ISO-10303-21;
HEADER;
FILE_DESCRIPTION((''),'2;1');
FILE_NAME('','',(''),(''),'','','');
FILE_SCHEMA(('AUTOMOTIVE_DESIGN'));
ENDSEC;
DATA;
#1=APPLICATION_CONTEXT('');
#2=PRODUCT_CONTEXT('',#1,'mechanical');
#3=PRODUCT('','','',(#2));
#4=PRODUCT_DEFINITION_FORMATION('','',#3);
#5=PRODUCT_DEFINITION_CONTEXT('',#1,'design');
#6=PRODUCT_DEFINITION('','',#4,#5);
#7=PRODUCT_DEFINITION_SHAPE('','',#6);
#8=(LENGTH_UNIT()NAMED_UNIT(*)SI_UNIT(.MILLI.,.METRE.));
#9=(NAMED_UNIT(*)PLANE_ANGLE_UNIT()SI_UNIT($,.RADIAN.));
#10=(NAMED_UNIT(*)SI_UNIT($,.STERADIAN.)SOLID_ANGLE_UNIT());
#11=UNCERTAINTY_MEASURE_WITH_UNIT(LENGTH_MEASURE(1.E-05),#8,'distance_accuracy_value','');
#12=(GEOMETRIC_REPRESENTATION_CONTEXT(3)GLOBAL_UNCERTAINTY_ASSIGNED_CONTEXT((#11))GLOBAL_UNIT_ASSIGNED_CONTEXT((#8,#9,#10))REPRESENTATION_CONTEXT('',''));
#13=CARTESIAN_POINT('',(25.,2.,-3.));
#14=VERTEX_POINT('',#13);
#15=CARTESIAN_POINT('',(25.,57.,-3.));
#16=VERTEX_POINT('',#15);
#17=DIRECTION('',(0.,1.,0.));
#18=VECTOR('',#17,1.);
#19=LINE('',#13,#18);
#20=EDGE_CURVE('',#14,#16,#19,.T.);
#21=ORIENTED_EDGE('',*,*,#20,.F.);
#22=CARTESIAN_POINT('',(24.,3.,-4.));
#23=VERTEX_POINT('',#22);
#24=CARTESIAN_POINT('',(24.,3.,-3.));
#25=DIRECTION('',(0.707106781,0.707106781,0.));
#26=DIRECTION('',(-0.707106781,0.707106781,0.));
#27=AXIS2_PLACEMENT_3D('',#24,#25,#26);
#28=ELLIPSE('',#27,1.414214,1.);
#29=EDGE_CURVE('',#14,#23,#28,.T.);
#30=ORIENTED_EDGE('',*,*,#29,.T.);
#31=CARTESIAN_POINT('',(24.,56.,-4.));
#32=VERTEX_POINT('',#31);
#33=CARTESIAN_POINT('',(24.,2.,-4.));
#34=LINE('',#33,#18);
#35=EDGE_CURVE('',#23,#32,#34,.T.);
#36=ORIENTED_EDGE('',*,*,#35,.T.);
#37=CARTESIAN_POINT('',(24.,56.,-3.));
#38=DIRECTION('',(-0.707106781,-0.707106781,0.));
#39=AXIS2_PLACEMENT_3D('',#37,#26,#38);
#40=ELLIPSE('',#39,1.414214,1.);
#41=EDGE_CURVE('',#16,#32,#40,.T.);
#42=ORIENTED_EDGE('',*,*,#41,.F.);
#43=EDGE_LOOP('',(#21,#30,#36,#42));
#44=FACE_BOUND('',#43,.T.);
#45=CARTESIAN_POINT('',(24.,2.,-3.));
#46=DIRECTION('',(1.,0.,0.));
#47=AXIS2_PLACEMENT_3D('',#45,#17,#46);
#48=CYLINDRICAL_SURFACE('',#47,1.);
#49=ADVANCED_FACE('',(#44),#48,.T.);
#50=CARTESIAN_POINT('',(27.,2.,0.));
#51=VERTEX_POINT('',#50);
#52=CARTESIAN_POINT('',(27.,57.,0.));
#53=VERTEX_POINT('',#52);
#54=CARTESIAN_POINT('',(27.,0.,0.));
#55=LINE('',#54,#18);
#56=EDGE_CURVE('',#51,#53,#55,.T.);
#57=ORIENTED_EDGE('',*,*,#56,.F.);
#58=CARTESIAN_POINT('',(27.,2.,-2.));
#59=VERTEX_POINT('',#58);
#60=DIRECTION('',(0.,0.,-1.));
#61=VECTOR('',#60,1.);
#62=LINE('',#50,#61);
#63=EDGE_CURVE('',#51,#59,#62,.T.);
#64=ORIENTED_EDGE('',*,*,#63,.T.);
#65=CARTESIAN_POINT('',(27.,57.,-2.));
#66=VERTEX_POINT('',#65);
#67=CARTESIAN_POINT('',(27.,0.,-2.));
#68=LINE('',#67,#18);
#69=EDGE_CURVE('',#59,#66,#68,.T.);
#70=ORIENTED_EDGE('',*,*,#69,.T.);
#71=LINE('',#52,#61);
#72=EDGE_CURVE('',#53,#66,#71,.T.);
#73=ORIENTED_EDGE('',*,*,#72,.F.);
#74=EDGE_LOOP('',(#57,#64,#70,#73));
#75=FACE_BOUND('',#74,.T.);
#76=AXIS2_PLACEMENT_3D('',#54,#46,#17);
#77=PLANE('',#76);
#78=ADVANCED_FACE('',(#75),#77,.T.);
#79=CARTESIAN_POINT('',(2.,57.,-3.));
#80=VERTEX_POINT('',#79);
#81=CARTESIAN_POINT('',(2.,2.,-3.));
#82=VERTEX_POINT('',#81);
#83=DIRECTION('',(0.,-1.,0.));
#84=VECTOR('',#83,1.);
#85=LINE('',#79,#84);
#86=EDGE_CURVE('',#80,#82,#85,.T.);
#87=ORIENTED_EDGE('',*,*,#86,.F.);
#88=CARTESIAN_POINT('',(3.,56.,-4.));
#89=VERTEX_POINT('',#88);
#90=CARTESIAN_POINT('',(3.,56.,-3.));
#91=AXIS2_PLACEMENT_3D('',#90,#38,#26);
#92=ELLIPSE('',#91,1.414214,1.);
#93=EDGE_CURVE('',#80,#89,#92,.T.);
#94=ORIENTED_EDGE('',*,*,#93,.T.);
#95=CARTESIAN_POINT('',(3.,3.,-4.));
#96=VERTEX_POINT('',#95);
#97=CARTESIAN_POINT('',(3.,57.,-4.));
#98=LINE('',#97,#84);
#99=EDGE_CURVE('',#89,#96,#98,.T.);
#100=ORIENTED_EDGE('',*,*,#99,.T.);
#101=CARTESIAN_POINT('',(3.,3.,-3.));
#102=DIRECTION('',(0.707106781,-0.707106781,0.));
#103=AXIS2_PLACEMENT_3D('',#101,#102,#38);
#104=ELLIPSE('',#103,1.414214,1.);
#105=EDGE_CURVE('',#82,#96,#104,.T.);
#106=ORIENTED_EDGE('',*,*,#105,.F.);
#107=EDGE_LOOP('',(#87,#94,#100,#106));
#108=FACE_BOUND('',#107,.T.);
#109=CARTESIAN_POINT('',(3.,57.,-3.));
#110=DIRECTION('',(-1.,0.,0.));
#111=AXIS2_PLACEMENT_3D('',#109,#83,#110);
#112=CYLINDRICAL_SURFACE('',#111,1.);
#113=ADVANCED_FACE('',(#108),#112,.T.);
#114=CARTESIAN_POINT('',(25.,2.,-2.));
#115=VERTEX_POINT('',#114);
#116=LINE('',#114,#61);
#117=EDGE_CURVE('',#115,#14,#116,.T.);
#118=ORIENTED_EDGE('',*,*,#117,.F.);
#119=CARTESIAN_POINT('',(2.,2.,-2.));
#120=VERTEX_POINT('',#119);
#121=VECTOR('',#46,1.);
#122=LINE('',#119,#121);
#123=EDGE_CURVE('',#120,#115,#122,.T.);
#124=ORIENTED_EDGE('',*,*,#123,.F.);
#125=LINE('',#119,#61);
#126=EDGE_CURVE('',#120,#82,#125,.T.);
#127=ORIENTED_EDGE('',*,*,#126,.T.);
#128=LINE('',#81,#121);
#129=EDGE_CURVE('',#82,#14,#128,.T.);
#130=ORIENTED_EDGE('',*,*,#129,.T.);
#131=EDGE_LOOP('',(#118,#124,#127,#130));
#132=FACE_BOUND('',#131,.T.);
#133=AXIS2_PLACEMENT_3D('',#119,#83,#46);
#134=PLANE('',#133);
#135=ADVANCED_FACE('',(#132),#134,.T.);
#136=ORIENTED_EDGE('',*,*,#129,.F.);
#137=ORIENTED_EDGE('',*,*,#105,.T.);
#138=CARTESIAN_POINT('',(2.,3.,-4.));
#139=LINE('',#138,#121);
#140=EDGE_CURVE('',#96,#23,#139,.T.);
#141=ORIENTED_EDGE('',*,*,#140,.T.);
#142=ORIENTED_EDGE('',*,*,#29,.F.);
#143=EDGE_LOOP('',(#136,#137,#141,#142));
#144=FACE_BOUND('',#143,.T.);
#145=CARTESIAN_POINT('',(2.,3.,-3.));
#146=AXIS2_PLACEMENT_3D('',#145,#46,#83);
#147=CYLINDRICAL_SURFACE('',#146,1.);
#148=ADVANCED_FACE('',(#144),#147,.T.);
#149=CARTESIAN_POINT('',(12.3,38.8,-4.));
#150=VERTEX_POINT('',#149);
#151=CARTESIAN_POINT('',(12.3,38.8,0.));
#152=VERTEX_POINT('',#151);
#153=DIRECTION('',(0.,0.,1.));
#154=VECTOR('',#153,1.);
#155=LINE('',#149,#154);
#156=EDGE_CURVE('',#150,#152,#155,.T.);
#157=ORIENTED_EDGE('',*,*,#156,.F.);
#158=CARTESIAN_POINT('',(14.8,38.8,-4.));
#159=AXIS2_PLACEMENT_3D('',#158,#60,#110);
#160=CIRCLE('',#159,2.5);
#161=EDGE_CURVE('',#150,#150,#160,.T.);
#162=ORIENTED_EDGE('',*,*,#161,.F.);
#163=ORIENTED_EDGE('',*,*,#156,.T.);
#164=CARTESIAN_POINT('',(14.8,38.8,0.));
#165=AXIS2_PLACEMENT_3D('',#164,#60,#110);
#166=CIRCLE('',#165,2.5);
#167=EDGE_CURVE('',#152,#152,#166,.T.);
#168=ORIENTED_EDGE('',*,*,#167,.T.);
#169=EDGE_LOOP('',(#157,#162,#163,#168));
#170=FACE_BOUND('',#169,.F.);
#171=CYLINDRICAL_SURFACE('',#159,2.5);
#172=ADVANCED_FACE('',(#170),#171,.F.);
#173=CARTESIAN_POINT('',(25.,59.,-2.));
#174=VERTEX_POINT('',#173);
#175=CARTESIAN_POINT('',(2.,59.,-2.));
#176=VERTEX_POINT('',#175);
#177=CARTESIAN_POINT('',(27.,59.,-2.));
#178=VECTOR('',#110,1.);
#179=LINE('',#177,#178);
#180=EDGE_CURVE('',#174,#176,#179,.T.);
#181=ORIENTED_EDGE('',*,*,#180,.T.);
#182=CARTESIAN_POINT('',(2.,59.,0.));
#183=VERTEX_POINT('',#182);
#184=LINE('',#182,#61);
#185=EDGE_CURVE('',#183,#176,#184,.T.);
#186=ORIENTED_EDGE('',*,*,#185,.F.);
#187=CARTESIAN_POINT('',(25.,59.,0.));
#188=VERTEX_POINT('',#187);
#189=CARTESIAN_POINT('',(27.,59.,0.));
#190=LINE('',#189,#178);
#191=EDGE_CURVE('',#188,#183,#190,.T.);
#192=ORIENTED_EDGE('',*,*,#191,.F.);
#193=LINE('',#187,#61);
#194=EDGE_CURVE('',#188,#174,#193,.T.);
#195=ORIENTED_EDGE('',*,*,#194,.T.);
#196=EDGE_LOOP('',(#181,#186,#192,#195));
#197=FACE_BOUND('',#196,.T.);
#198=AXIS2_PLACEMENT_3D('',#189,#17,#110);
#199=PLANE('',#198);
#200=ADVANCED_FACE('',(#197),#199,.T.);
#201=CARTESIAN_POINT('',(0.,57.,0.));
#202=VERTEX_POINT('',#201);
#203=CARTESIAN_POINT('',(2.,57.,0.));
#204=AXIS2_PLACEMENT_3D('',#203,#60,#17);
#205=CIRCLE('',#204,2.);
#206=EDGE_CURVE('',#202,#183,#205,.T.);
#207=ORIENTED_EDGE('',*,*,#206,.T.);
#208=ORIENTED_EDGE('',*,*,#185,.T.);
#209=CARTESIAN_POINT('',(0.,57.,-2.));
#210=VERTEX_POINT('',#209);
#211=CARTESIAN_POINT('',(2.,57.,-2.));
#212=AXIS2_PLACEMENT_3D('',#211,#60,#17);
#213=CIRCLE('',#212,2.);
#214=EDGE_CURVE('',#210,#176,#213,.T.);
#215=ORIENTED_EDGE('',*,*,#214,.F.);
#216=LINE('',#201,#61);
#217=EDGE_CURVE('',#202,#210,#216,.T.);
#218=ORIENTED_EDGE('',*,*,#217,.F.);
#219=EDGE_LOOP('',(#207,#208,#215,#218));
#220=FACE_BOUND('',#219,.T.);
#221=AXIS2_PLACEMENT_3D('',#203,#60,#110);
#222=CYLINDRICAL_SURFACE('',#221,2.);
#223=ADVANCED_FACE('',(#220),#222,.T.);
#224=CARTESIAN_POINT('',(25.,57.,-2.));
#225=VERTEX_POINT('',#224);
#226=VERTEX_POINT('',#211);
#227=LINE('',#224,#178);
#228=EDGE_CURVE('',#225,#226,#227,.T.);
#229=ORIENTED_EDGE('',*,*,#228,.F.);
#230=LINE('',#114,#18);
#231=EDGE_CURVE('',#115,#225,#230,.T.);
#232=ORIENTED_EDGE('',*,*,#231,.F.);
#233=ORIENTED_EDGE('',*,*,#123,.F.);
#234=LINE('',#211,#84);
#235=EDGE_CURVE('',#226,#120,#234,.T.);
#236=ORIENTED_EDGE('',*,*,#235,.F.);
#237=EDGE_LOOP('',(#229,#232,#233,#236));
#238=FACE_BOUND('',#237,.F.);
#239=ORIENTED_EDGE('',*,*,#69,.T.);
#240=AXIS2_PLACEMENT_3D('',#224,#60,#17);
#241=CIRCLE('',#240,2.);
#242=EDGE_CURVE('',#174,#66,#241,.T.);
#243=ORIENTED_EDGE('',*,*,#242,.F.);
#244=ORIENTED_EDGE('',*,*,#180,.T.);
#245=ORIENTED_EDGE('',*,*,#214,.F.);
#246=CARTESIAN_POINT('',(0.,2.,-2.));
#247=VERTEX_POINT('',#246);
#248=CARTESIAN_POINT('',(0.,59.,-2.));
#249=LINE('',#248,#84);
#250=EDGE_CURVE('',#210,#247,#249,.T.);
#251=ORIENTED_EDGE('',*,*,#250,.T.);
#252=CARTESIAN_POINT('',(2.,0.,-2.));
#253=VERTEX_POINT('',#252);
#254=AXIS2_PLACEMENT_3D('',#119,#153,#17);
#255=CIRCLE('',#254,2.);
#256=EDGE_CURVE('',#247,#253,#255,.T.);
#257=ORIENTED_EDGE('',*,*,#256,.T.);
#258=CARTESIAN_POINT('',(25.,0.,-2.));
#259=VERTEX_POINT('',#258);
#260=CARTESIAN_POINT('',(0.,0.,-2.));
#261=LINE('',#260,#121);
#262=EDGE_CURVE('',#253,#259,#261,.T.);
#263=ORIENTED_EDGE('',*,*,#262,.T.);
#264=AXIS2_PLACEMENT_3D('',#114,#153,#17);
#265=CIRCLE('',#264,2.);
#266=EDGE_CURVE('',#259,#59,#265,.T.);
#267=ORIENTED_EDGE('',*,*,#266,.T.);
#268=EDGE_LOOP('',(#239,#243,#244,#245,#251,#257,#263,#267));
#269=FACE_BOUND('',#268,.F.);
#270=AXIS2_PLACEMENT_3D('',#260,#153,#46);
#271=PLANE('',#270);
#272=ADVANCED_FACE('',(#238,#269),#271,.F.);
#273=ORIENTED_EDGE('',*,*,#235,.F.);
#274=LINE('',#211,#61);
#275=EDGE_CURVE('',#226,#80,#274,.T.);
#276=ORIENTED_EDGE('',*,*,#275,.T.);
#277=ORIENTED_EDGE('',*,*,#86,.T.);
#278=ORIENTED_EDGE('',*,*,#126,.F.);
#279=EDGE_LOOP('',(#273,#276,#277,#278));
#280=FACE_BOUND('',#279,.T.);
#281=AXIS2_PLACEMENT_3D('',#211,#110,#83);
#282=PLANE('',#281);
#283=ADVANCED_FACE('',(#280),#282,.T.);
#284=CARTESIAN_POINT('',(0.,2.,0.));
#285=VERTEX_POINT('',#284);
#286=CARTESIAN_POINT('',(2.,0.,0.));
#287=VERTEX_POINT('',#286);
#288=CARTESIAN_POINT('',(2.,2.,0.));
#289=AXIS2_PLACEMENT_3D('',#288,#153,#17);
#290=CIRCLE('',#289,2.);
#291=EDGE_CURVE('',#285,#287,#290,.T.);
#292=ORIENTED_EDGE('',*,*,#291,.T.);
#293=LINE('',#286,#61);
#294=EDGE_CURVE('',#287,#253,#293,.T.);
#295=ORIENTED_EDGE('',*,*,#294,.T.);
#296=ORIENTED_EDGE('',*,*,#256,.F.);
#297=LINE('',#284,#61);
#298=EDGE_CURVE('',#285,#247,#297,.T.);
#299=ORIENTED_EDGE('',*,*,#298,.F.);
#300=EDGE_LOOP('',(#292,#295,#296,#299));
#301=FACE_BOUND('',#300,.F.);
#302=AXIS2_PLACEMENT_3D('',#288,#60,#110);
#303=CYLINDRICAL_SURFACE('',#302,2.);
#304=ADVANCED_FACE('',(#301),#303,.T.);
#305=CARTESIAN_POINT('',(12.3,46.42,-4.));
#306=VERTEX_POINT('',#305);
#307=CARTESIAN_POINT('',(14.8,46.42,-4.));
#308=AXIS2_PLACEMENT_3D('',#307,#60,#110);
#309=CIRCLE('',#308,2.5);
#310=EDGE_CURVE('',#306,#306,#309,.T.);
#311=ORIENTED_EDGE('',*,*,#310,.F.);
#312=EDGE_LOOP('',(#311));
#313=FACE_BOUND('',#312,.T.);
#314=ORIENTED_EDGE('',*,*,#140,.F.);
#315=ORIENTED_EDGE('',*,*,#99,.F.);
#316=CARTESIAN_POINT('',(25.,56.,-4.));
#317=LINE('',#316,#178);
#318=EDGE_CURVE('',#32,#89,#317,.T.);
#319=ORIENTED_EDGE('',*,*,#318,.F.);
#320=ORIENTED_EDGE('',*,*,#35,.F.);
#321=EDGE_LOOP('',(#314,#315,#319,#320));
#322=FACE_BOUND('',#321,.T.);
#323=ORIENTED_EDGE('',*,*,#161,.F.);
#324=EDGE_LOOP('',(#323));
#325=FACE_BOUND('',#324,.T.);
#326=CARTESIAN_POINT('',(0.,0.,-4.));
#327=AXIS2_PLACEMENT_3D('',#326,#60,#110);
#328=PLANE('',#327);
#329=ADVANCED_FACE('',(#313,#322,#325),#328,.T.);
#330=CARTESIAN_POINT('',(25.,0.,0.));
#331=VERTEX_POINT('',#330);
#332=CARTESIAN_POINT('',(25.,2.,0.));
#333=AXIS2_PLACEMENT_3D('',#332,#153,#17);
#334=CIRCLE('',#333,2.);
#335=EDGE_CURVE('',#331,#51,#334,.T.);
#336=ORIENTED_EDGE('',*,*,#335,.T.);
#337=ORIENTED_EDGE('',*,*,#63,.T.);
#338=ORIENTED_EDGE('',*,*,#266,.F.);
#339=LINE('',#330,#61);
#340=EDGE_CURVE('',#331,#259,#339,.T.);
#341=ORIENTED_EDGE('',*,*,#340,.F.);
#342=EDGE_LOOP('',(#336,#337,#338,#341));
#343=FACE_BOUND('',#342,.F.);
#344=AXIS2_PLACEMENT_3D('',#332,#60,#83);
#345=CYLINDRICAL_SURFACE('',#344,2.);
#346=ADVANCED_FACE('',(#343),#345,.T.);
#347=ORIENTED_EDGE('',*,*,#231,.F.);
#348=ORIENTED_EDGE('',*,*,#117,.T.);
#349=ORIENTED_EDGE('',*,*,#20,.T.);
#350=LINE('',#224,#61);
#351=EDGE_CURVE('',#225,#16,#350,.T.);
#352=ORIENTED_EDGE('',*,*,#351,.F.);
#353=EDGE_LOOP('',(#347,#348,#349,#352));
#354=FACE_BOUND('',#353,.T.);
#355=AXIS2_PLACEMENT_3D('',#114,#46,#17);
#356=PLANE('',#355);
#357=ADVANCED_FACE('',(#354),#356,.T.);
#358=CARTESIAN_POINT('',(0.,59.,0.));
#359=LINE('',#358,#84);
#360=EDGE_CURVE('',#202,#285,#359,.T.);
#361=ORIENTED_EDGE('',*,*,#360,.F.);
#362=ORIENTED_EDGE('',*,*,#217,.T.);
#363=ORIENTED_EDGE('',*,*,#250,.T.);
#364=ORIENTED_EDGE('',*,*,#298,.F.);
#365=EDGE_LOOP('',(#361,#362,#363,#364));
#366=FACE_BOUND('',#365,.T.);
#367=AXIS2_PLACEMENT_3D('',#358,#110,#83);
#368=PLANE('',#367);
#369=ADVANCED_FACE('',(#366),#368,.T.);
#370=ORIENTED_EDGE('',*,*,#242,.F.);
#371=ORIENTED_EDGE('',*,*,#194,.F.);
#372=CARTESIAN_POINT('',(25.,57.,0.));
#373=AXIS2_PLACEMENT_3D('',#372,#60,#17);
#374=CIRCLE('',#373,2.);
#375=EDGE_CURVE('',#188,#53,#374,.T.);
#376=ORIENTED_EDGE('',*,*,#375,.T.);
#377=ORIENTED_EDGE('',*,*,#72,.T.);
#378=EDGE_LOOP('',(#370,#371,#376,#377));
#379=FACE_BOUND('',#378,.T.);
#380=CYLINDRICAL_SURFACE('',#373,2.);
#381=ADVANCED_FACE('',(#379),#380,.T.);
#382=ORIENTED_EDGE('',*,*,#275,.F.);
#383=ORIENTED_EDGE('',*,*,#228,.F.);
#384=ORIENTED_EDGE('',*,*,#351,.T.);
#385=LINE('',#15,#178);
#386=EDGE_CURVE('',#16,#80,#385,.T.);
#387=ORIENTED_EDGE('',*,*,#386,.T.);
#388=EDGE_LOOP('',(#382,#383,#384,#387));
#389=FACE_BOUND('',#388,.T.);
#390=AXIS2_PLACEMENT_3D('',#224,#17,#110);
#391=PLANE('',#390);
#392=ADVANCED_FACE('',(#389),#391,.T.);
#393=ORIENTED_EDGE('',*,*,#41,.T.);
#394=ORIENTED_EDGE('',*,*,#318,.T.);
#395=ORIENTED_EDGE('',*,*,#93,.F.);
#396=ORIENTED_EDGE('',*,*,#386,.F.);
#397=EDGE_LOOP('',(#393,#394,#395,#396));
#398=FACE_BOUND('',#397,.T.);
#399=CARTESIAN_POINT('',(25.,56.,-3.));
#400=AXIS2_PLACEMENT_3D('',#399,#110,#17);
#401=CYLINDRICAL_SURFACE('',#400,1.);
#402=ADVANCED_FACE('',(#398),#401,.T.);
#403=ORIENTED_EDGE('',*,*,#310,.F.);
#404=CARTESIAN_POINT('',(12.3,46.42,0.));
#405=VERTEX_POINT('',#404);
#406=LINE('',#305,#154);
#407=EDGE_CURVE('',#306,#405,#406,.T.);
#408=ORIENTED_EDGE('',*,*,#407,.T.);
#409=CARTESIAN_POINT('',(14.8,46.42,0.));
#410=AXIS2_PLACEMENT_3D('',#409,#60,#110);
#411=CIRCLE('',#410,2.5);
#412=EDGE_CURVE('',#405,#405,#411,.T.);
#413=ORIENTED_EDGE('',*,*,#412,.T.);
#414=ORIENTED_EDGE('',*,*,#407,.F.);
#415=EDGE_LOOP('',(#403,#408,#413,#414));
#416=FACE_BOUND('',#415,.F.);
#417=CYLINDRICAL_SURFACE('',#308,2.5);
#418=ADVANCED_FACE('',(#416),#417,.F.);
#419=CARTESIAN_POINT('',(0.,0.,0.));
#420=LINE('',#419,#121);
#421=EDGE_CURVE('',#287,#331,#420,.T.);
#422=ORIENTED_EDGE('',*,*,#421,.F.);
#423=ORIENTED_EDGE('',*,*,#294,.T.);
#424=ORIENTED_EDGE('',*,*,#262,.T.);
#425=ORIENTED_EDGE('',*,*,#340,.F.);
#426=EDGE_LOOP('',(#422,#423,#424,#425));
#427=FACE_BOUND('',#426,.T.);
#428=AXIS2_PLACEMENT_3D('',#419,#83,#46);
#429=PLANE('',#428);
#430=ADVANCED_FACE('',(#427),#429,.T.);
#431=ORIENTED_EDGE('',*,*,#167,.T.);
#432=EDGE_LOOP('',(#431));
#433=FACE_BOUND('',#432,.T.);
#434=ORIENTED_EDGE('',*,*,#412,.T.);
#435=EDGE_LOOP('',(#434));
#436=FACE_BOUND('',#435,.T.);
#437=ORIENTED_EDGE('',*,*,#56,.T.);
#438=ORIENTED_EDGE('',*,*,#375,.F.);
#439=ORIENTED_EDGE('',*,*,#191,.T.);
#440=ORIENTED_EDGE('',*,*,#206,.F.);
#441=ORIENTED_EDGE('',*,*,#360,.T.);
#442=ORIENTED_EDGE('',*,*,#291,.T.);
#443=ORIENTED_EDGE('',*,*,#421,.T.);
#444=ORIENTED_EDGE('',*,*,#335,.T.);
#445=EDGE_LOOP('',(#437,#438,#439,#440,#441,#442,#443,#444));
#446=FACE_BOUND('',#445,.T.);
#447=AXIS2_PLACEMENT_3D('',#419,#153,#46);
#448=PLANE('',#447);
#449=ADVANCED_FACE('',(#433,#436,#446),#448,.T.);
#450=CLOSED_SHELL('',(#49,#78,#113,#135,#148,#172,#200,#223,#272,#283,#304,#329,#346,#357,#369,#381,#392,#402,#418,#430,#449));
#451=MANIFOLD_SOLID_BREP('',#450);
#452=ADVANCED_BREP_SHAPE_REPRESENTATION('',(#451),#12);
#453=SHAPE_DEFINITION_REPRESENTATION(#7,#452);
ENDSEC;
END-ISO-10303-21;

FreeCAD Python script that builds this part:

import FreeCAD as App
import Part
import Sketcher
from FreeCAD import Vector
Q = App.Units.Quantity


def edges_at(feature, points):
    """Names of the edges that pass closest to the given points."""
    edges = feature.Shape.Edges
    near = lambda p: min(range(len(edges)), key=lambda i: edges[i].distToShape(Part.Vertex(*p))[0])
    return sorted({f"Edge{near(p) + 1}" for p in points})

doc = App.newDocument("Part")
body = doc.addObject("PartDesign::Body", "Body")

sketch1 = body.newObject("Sketcher::SketchObject", "Sketch")
sketch1.AttachmentSupport = (doc.getObject("XY_Plane"), [""])
sketch1.MapMode = "FlatFace"
sketch1.addGeometry([
    Part.LineSegment(Vector(0, 59, 0), Vector(0, 0, 0)),
    Part.LineSegment(Vector(0, 0, 0), Vector(27, 0, 0)),
    Part.LineSegment(Vector(27, 0, 0), Vector(27, 59, 0)),
    Part.LineSegment(Vector(27, 59, 0), Vector(0, 59, 0)),
], False)
sketch1.addConstraint([
    Sketcher.Constraint("Coincident", 0, 2, 1, 1),
    Sketcher.Constraint("Coincident", 1, 2, 2, 1),
    Sketcher.Constraint("Coincident", 2, 2, 3, 1),
    Sketcher.Constraint("Coincident", 3, 2, 0, 1),
    Sketcher.Constraint("Vertical", 0),
    Sketcher.Constraint("Horizontal", 1),
    Sketcher.Constraint("Vertical", 2),
    Sketcher.Constraint("Horizontal", 3),
    Sketcher.Constraint("Coincident", 0, 2, -1, 1),
    Sketcher.Constraint("DistanceX", 1, 1, 1, 2, Q("27 mm")),
    Sketcher.Constraint("DistanceY", 0, 2, 0, 1, Q("59 mm")),
])
pad1 = body.newObject("PartDesign::Pad", "Pad")
pad1.Profile = sketch1
pad1.Length = 2
pad1.Reversed = True

sketch2 = body.newObject("Sketcher::SketchObject", "Sketch001")
sketch2.AttachmentSupport = (doc.getObject("XY_Plane"), [""])
sketch2.MapMode = "FlatFace"
sketch2.AttachmentOffset = App.Placement(Vector(0, 0, -2), App.Rotation())
sketch2.addGeometry([
    Part.LineSegment(Vector(25, 2, 0), Vector(2, 2, 0)),
    Part.LineSegment(Vector(2, 2, 0), Vector(2, 57, 0)),
    Part.LineSegment(Vector(2, 57, 0), Vector(25, 57, 0)),
    Part.LineSegment(Vector(25, 57, 0), Vector(25, 2, 0)),
], False)
sketch2.addConstraint([
    Sketcher.Constraint("Coincident", 0, 2, 1, 1),
    Sketcher.Constraint("Coincident", 1, 2, 2, 1),
    Sketcher.Constraint("Coincident", 2, 2, 3, 1),
    Sketcher.Constraint("Coincident", 3, 2, 0, 1),
    Sketcher.Constraint("Horizontal", 0),
    Sketcher.Constraint("Vertical", 1),
    Sketcher.Constraint("Horizontal", 2),
    Sketcher.Constraint("Vertical", 3),
    Sketcher.Constraint("DistanceX", -1, 1, 0, 2, Q("2 mm")),
    Sketcher.Constraint("DistanceY", -1, 1, 0, 2, Q("2 mm")),
    Sketcher.Constraint("DistanceX", 0, 2, 0, 1, Q("23 mm")),
    Sketcher.Constraint("DistanceY", 1, 1, 1, 2, Q("55 mm")),
])
pad2 = body.newObject("PartDesign::Pad", "Pad001")
pad2.Profile = sketch2
pad2.Length = 2
pad2.Reversed = True

sketch3 = body.newObject("Sketcher::SketchObject", "Sketch002")
sketch3.AttachmentSupport = (doc.getObject("XY_Plane"), [""])
sketch3.MapMode = "FlatFace"
sketch3.AttachmentOffset = App.Placement(Vector(0, 0, -4), App.Rotation())
sketch3.addGeometry([
    Part.Circle(Vector(14.8, 38.8, 0), Vector(0, 0, 1), 2.5),
    Part.Circle(Vector(14.8, 46.4, 0), Vector(0, 0, 1), 2.5),
], False)
sketch3.addConstraint([
    Sketcher.Constraint("Equal", 0, 1),
    Sketcher.Constraint("Vertical", 0, 3, 1, 3),
    Sketcher.Constraint("Diameter", 0, Q("5 mm")),
    Sketcher.Constraint("DistanceY", -1, 1, 0, 3, Q("38.8 mm")),
    Sketcher.Constraint("DistanceY", 0, 3, 1, 3, Q("7.62 mm")),
    Sketcher.Constraint("DistanceX", -1, 1, 0, 3, Q("14.8 mm")),
])
pocket1 = body.newObject("PartDesign::Pocket", "Pocket")
pocket1.Profile = sketch3
pocket1.Type = "ThroughAll"
pocket1.Reversed = True
doc.recompute()

fillet = body.newObject("PartDesign::Fillet", "Fillet")
fillet.Base = (pocket1, edges_at(pocket1, [
    (13.5, 57, -4),
    (25, 29.5, -4),
    (2, 29.5, -4),
    (13.5, 2, -4),
]))
fillet.Radius = 1
doc.recompute()

fillet2 = body.newObject("PartDesign::Fillet", "Fillet001")
fillet2.Base = (fillet, edges_at(fillet, [
    (0, 59, -1),
    (0, 0, -1),
    (27, 59, -1),
    (27, 0, -1),
]))
fillet2.Radius = 2

doc.recompute()
